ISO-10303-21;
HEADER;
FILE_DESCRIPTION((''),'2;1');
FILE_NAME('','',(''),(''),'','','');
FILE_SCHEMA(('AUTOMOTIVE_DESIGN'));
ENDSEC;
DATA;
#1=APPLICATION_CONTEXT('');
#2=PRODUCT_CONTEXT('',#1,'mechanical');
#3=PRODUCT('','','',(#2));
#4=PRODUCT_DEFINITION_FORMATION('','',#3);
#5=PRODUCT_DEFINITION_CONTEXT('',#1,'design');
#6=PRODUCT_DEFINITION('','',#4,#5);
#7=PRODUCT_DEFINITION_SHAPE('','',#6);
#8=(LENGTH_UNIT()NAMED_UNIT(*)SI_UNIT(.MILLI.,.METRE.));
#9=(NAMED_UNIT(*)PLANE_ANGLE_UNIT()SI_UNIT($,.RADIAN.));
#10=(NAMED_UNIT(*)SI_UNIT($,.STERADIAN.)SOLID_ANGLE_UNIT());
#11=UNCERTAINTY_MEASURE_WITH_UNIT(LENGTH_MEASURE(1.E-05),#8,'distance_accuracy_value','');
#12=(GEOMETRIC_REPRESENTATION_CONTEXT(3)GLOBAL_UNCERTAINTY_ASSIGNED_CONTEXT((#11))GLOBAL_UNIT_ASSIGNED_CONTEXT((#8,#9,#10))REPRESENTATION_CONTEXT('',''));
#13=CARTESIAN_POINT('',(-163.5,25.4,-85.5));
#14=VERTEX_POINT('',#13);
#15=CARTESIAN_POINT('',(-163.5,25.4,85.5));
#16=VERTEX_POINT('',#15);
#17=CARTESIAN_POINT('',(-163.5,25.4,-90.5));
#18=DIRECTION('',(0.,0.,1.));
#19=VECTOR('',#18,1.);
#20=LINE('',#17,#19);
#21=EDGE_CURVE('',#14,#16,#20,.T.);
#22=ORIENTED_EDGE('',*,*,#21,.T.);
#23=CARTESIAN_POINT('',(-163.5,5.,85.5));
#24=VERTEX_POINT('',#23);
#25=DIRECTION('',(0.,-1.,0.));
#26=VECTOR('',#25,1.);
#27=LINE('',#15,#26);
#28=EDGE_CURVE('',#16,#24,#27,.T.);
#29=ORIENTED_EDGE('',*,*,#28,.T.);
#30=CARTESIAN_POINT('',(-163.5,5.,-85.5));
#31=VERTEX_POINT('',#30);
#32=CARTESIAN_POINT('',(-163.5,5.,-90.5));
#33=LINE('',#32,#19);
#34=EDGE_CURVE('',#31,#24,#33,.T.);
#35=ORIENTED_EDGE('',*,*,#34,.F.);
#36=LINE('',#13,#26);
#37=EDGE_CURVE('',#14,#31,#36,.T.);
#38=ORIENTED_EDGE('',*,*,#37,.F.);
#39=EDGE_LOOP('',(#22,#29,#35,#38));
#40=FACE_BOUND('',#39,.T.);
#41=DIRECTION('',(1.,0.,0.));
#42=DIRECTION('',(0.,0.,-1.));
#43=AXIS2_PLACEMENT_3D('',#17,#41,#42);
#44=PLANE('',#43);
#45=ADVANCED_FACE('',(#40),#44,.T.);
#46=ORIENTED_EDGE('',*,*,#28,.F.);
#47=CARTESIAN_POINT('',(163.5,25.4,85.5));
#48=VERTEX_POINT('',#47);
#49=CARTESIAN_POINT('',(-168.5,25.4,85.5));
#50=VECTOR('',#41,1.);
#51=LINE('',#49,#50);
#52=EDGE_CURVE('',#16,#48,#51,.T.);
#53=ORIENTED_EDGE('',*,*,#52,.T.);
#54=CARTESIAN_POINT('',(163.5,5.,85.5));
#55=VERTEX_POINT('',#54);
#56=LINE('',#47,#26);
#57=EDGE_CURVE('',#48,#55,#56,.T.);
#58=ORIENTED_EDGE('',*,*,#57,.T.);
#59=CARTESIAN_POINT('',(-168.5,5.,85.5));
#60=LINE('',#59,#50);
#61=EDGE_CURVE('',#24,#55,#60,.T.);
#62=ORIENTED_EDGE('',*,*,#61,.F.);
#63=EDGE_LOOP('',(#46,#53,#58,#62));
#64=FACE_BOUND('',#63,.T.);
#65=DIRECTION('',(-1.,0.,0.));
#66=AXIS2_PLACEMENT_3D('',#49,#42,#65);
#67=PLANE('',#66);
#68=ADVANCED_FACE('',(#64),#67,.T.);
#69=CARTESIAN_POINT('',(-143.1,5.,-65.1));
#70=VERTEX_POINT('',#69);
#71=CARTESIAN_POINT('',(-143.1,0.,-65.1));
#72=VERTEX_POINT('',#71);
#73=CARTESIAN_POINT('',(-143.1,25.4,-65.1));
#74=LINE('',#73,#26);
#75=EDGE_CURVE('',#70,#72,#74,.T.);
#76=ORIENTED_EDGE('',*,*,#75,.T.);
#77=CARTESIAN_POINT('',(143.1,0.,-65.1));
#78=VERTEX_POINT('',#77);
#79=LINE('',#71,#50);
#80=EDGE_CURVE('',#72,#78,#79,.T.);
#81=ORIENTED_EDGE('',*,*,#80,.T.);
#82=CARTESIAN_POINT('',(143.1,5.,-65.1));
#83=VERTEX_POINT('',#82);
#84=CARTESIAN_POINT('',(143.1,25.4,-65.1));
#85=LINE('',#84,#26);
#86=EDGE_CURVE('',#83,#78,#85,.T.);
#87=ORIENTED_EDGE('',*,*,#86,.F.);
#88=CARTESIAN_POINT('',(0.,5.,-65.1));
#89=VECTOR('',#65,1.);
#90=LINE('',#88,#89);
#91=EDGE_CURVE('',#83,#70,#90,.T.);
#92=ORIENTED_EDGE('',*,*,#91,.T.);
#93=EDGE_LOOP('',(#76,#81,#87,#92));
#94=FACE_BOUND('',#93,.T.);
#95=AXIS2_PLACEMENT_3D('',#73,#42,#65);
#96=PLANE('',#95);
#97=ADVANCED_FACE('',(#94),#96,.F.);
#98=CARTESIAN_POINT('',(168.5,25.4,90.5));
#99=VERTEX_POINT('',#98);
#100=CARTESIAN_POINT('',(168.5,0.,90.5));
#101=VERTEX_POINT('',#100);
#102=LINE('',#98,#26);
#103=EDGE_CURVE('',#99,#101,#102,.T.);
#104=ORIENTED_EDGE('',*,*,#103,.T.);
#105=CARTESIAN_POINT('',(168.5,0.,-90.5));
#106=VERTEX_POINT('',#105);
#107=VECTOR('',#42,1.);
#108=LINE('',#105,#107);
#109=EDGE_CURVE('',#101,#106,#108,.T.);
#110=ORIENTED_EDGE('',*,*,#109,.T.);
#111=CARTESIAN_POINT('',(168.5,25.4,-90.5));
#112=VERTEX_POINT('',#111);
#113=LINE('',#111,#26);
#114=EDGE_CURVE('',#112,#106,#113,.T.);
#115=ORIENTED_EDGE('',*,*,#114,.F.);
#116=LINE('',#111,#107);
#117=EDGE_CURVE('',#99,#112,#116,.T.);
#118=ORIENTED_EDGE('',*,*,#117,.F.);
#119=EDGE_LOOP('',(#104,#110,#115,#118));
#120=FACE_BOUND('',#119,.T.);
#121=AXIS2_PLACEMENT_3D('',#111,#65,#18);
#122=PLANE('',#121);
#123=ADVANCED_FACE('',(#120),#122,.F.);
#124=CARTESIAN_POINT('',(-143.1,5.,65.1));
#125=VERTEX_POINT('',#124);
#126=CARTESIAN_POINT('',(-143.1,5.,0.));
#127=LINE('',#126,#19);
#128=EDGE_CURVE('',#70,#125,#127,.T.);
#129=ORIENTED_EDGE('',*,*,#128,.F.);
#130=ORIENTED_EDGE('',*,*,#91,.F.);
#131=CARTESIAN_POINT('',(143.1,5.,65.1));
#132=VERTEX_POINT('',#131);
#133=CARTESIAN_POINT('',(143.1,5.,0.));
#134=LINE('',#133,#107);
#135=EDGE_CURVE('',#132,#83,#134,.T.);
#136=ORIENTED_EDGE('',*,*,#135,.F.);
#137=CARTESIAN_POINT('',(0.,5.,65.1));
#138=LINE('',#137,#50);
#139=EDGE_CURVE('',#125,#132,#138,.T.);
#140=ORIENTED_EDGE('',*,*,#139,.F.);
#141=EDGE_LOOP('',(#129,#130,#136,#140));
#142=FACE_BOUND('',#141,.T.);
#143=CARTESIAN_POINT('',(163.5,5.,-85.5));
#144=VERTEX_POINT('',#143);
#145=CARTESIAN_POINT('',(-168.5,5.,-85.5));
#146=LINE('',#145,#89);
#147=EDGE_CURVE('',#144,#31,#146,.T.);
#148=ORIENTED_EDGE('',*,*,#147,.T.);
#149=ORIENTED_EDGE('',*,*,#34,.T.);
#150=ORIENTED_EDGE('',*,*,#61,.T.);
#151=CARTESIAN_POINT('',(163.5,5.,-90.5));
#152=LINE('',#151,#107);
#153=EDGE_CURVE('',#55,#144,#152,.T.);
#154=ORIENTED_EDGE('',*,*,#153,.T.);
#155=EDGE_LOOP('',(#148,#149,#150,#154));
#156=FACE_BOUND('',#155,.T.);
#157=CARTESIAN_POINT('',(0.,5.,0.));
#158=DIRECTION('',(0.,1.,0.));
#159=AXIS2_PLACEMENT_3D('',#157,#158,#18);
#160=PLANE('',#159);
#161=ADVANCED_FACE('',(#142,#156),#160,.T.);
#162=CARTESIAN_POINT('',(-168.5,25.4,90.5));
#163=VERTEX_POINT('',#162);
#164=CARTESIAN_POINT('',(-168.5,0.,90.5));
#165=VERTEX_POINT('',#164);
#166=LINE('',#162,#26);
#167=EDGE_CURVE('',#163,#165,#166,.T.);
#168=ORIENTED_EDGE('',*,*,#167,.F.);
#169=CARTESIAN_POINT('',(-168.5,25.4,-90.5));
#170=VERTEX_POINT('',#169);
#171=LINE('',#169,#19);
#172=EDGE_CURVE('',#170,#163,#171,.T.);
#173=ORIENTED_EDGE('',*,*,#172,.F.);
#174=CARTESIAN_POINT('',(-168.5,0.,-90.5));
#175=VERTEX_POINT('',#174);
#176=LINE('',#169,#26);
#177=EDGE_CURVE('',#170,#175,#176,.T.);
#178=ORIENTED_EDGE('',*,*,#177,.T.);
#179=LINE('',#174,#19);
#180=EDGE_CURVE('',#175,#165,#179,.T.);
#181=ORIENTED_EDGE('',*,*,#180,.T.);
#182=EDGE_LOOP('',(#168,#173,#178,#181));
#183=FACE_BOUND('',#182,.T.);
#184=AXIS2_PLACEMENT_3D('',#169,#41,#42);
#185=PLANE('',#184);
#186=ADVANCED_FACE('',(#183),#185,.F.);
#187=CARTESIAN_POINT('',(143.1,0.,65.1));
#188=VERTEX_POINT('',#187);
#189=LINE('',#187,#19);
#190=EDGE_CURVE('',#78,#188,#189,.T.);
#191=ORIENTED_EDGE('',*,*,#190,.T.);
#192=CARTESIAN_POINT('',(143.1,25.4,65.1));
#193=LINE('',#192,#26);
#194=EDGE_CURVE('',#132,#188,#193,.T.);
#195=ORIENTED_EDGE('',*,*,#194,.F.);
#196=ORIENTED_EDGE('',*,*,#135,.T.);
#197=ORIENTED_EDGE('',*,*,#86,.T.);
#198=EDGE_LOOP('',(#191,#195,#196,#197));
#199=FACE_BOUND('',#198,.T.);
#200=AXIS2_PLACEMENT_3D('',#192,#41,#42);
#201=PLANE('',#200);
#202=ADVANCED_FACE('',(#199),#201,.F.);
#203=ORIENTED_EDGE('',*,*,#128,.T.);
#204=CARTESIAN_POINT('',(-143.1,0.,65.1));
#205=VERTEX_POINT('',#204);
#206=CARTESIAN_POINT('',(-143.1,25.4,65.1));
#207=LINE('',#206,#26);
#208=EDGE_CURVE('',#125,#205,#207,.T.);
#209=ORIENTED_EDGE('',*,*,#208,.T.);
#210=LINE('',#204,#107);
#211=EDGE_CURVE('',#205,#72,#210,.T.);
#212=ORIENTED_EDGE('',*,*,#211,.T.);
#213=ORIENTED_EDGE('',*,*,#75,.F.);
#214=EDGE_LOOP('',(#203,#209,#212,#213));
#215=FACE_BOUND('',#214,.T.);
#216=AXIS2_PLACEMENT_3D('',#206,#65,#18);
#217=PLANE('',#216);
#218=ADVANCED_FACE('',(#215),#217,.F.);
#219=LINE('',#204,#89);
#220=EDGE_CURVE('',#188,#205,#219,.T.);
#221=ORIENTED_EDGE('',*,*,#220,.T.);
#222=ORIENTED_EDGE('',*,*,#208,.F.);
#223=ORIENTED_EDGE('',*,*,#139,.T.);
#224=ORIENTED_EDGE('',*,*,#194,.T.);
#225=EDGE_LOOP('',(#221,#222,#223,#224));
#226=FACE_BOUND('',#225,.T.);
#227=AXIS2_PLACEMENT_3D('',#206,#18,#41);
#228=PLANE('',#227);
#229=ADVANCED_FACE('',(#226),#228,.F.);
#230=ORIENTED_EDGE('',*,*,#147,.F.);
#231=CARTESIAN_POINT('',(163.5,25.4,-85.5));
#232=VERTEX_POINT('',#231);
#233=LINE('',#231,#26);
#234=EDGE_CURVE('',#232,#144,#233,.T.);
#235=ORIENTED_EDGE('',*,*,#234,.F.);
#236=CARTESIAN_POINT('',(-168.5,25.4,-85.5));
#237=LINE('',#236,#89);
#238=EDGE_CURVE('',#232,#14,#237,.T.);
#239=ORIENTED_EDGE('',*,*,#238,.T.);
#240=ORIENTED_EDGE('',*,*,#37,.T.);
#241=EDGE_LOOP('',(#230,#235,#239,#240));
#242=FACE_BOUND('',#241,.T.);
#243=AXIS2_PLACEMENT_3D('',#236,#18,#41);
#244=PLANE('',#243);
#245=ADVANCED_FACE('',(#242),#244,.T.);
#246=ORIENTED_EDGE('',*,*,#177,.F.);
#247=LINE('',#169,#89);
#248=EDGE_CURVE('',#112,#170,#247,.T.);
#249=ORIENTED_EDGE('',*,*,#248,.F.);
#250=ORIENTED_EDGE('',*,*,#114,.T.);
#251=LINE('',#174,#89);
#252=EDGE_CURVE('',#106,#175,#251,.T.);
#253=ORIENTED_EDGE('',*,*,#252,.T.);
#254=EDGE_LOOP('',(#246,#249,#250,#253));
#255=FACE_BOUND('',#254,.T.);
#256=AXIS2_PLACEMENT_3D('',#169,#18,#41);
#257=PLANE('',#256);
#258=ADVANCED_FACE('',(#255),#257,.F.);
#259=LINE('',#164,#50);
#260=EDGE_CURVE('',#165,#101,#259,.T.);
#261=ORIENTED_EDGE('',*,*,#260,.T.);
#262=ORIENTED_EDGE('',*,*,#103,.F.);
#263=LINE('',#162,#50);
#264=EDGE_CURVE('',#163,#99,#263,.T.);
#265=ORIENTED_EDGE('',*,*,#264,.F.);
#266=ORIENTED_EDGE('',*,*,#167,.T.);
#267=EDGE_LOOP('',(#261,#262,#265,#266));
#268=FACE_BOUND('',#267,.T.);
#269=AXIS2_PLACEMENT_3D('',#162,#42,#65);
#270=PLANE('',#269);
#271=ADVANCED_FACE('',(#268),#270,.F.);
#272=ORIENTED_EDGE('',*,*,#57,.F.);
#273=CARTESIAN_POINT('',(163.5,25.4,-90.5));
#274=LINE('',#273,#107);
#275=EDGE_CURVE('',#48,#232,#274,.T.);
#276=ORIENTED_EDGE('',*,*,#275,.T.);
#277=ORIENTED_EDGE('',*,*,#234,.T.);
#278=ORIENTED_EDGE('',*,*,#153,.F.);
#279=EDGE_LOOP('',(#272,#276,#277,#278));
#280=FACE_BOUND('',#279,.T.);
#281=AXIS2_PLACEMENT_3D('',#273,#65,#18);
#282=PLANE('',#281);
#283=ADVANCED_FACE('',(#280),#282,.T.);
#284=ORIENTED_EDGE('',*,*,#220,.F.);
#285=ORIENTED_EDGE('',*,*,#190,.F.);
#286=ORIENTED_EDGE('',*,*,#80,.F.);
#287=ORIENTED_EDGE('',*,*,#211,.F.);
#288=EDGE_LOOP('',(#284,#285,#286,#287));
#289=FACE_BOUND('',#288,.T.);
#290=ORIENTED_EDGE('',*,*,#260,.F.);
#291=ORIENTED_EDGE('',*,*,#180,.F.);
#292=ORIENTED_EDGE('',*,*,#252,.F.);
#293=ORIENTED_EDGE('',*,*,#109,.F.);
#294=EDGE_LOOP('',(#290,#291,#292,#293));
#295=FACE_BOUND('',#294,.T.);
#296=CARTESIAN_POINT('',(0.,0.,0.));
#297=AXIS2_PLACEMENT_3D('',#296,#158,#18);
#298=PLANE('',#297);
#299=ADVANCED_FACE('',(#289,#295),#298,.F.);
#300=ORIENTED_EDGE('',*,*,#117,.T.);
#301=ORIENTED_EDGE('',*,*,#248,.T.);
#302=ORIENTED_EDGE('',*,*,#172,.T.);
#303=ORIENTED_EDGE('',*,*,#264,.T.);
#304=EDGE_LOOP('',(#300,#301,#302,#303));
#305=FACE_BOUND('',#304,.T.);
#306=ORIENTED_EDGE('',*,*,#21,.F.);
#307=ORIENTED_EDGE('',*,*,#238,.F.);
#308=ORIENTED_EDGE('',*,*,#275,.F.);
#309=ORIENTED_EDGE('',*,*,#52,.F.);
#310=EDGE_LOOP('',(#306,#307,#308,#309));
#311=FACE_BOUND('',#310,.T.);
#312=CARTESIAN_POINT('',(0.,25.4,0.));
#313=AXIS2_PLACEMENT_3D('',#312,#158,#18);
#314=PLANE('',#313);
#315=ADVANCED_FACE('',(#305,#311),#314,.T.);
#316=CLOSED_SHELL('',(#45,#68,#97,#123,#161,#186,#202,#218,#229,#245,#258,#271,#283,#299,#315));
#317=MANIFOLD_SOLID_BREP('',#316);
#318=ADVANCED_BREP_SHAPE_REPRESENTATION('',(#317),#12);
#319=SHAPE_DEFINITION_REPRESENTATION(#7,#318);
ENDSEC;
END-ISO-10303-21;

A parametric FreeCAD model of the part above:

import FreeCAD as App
import Part
import Sketcher
Q = App.Units.Quantity


def faces_at(feature, points):
    """Names of the faces that lie closest to the given points."""
    faces = feature.Shape.Faces
    near = lambda p: min(range(len(faces)), key=lambda i: faces[i].distToShape(Part.Vertex(*p))[0])
    return sorted({f"Face{near(p) + 1}" for p in points})

doc = App.newDocument("Part")
body = doc.addObject("PartDesign::Body", "Body")

sketch1 = body.newObject("Sketcher::SketchObject", "Sketch")
sketch1.AttachmentSupport = (doc.getObject("XZ_Plane"), [""])
sketch1.MapMode = "FlatFace"
sketch1.addGeometry([
    Part.LineSegment(App.Vector(-168, -90, 0), App.Vector(-168, 90, 0)),
    Part.LineSegment(App.Vector(-168, 90, 0), App.Vector(168, 90, 0)),
    Part.LineSegment(App.Vector(168, 90, 0), App.Vector(168, -90, 0)),
    Part.LineSegment(App.Vector(168, -90, 0), App.Vector(-168, -90, 0)),
], False)
sketch1.addConstraint([
    Sketcher.Constraint("Coincident", 0, 2, 1, 1),
    Sketcher.Constraint("Coincident", 1, 2, 2, 1),
    Sketcher.Constraint("Coincident", 2, 2, 3, 1),
    Sketcher.Constraint("Coincident", 3, 2, 0, 1),
    Sketcher.Constraint("Vertical", 0),
    Sketcher.Constraint("Horizontal", 1),
    Sketcher.Constraint("Vertical", 2),
    Sketcher.Constraint("Horizontal", 3),
    Sketcher.Constraint("Symmetric", 0, 2, 2, 2, -1, 1),
    Sketcher.Constraint("DistanceX", 1, 1, 1, 2, Q("337 mm")),
    Sketcher.Constraint("DistanceY", 0, 1, 0, 2, Q("181 mm")),
])
pad1 = body.newObject("PartDesign::Pad", "Pad")
pad1.Profile = sketch1
pad1.Length = 25.4
pad1.Reversed = True
doc.recompute()

thickness = body.newObject("PartDesign::Thickness", "Thickness")
thickness.Base = (pad1, faces_at(pad1, [(0, 25.4, 0)]))
thickness.Value = 5
thickness.Reversed = True
thickness.Join = "Intersection"

sketch2 = body.newObject("Sketcher::SketchObject", "Sketch001")
sketch2.AttachmentSupport = (doc.getObject("XZ_Plane"), [""])
sketch2.MapMode = "FlatFace"
sketch2.addGeometry([
    Part.LineSegment(App.Vector(-143, 65, 0), App.Vector(-143, -65, 0)),
    Part.LineSegment(App.Vector(-143, -65, 0), App.Vector(143, -65, 0)),
    Part.LineSegment(App.Vector(143, -65, 0), App.Vector(143, 65, 0)),
    Part.LineSegment(App.Vector(143, 65, 0), App.Vector(-143, 65, 0)),
], False)
sketch2.addConstraint([
    Sketcher.Constraint("Coincident", 0, 2, 1, 1),
    Sketcher.Constraint("Coincident", 1, 2, 2, 1),
    Sketcher.Constraint("Coincident", 2, 2, 3, 1),
    Sketcher.Constraint("Coincident", 3, 2, 0, 1),
    Sketcher.Constraint("Vertical", 0),
    Sketcher.Constraint("Horizontal", 1),
    Sketcher.Constraint("Vertical", 2),
    Sketcher.Constraint("Horizontal", 3),
    Sketcher.Constraint("Symmetric", 0, 2, 2, 2, -1, 1),
    Sketcher.Constraint("DistanceX", 1, 1, 1, 2, Q("286.2 mm")),
    Sketcher.Constraint("DistanceY", 0, 2, 0, 1, Q("130.2 mm")),
])
pocket1 = body.newObject("PartDesign::Pocket", "Pocket")
pocket1.Profile = sketch2
pocket1.Type = "ThroughAll"

doc.recompute()
